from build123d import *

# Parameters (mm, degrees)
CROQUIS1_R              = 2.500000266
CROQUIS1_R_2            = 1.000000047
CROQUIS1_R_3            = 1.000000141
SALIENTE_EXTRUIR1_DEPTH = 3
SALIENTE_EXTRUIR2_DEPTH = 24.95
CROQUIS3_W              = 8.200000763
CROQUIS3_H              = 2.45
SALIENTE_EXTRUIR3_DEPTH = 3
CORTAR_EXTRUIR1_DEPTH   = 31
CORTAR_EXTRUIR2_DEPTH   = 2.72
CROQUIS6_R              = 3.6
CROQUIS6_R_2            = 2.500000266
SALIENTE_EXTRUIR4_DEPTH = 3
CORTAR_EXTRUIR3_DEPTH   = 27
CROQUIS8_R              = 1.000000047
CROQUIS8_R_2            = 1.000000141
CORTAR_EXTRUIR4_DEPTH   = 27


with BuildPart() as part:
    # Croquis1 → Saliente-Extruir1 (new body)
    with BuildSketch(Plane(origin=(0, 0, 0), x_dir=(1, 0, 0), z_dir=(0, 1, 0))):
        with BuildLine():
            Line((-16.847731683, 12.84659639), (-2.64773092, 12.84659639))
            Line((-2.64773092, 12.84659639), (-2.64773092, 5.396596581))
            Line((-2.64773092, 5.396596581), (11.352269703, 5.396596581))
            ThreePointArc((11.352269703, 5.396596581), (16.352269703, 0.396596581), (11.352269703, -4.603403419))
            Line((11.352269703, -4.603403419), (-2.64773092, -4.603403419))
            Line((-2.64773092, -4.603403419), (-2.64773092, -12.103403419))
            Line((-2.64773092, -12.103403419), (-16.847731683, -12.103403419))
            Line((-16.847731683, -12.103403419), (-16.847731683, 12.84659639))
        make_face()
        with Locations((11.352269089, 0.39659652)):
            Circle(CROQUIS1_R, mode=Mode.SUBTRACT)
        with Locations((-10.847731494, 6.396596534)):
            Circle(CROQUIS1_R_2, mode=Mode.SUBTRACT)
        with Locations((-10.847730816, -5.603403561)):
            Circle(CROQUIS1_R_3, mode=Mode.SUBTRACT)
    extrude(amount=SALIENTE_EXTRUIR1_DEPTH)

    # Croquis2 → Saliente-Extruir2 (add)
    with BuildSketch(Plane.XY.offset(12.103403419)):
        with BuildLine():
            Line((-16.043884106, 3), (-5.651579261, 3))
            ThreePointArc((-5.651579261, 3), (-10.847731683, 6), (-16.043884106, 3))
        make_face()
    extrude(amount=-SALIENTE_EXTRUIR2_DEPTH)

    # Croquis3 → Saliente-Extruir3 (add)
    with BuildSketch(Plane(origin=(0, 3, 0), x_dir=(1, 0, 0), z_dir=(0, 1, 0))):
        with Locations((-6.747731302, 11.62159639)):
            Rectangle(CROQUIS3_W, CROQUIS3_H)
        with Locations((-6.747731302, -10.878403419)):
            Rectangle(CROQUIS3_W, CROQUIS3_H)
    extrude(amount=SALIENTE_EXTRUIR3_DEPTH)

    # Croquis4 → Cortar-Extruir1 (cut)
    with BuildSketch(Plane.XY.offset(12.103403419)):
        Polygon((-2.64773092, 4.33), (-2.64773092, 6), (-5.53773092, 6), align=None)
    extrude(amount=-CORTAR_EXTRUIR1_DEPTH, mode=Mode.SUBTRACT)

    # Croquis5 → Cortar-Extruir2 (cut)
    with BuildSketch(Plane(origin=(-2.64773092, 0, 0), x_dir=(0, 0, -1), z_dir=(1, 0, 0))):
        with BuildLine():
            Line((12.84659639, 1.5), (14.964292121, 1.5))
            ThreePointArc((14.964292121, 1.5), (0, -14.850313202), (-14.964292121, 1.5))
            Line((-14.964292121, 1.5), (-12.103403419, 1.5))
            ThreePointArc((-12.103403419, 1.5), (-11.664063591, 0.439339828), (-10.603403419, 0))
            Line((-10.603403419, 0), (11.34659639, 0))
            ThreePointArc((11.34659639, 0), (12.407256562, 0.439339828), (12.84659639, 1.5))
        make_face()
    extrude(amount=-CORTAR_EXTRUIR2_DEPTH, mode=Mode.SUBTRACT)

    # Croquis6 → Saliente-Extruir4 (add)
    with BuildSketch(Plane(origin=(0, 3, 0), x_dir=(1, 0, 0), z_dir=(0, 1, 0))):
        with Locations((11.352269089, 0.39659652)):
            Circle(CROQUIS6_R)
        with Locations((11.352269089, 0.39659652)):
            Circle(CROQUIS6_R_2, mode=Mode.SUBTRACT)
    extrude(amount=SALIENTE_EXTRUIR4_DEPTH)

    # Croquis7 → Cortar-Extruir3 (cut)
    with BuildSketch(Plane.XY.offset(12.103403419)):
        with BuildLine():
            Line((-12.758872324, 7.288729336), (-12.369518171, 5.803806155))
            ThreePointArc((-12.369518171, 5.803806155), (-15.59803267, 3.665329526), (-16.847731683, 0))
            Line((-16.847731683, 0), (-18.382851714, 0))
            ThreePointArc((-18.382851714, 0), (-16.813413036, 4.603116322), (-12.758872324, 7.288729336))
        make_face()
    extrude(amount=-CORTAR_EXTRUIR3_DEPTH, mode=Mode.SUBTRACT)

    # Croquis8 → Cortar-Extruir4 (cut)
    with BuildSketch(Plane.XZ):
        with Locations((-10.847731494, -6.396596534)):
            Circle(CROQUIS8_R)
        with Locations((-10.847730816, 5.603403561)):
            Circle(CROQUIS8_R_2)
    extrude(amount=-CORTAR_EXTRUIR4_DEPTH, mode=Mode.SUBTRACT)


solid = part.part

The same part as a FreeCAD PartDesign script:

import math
import FreeCAD as App
import Part
import Sketcher
from FreeCAD import Vector
Q = App.Units.Quantity

doc = App.newDocument("Part")
body = doc.addObject("PartDesign::Body", "Body")

sketch1 = body.newObject("Sketcher::SketchObject", "Sketch")
sketch1.AttachmentSupport = (doc.getObject("XZ_Plane"), [""])
sketch1.MapMode = "FlatFace"
sketch1.addGeometry(Part.LineSegment(Vector(-2.6, -12.8, 0), Vector(-16.8, -12.8, 0)), False)
sketch1.addGeometry(Part.LineSegment(Vector(-16.8, -12.8, 0), Vector(-16.8, 12.1, 0)), False)
sketch1.addGeometry(Part.LineSegment(Vector(-16.8, 12.1, 0), Vector(-2.6, 12.1, 0)), False)
sketch1.addGeometry(Part.LineSegment(Vector(-2.6, 12.1, 0), Vector(-2.6, 4.6, 0)), False)
sketch1.addGeometry(Part.LineSegment(Vector(-2.6, 4.6, 0), Vector(11.4, 4.6, 0)), False)
sketch1.addGeometry(Part.ArcOfCircle(Part.Circle(Vector(11.4, -0.4, 0), Vector(0, 0, 1), 5), math.radians(-90), math.radians(90)), False)
sketch1.addGeometry(Part.LineSegment(Vector(11.4, -5.4, 0), Vector(-2.6, -5.4, 0)), False)
sketch1.addGeometry(Part.LineSegment(Vector(-2.6, -5.4, 0), Vector(-2.6, -12.8, 0)), False)
sketch1.addGeometry(Part.Circle(Vector(-10.8, 5.6, 0), Vector(0, 0, 1), 1), False)
sketch1.addGeometry(Part.Circle(Vector(11.4, -0.4, 0), Vector(0, 0, 1), 2.5), False)
sketch1.addGeometry(Part.Circle(Vector(-10.8, -6.4, 0), Vector(0, 0, 1), 1), False)
sketch1.addConstraint(Sketcher.Constraint("Coincident", 0, 2, 1, 1))
sketch1.addConstraint(Sketcher.Constraint("Coincident", 1, 2, 2, 1))
sketch1.addConstraint(Sketcher.Constraint("Coincident", 2, 2, 3, 1))
sketch1.addConstraint(Sketcher.Constraint("Coincident", 3, 2, 4, 1))
sketch1.addConstraint(Sketcher.Constraint("Tangent", 4, 2, 5, 2))
sketch1.addConstraint(Sketcher.Constraint("Tangent", 5, 1, 6, 1))
sketch1.addConstraint(Sketcher.Constraint("Coincident", 6, 2, 7, 1))
sketch1.addConstraint(Sketcher.Constraint("Coincident", 7, 2, 0, 1))
sketch1.addConstraint(Sketcher.Constraint("Horizontal", 0))
sketch1.addConstraint(Sketcher.Constraint("Vertical", 1))
sketch1.addConstraint(Sketcher.Constraint("Horizontal", 2))
sketch1.addConstraint(Sketcher.Constraint("Vertical", 3))
sketch1.addConstraint(Sketcher.Constraint("Horizontal", 4))
sketch1.addConstraint(Sketcher.Constraint("Horizontal", 6))
sketch1.addConstraint(Sketcher.Constraint("Vertical", 7))
sketch1.addConstraint(Sketcher.Constraint("Coincident", 9, 3, 5, 3))
sketch1.addConstraint(Sketcher.Constraint("Equal", 8, 10))
sketch1.addConstraint(Sketcher.Constraint("Vertical", 8, 3, 10, 3))
sketch1.addConstraint(Sketcher.Constraint("Vertical", 3, 2, 6, 2))
sketch1.addConstraint(Sketcher.Constraint("Diameter", 8, Q("2 mm")))
sketch1.addConstraint(Sketcher.Constraint("Diameter", 9, Q("5.000001 mm")))
sketch1.addConstraint(Sketcher.Constraint("Radius", 5, Q("5 mm")))
sketch1.addConstraint(Sketcher.Constraint("DistanceX", 4, 1, 4, 2, Q("14.000001 mm")))
sketch1.addConstraint(Sketcher.Constraint("DistanceX", 0, 2, 0, 1, Q("14.200001 mm")))
sketch1.addConstraint(Sketcher.Constraint("DistanceY", 3, 2, 3, 1, Q("7.5 mm")))
sketch1.addConstraint(Sketcher.Constraint("DistanceY", 5, 3, 8, 3, Q("6 mm")))
sketch1.addConstraint(Sketcher.Constraint("DistanceY", 10, 3, 8, 3, Q("12 mm")))
sketch1.addConstraint(Sketcher.Constraint("DistanceX", 0, 2, 10, 3, Q("6 mm")))
sketch1.addConstraint(Sketcher.Constraint("DistanceY", 1, 1, 1, 2, Q("24.95 mm")))
sketch1.addConstraint(Sketcher.Constraint("DistanceX", -1, 1, 5, 3, Q("11.35227 mm")))
sketch1.addConstraint(Sketcher.Constraint("DistanceY", 5, 3, -1, 1, Q("0.396597 mm")))
pad1 = body.newObject("PartDesign::Pad", "Pad")
pad1.Profile = sketch1
pad1.Length = 3
pad1.Reversed = True

sketch2 = body.newObject("Sketcher::SketchObject", "Sketch001")
sketch2.AttachmentSupport = (doc.getObject("XY_Plane"), [""])
sketch2.MapMode = "FlatFace"
sketch2.AttachmentOffset = App.Placement(Vector(0, 0, 12.103403), App.Rotation())
sketch2.addGeometry(Part.LineSegment(Vector(-16, 3, 0), Vector(-6, 3, 0)), False)
sketch2.addGeometry(Part.ArcOfCircle(Part.Circle(Vector(-11, 0, 0), Vector(0, 0, 1), 6), math.radians(30), math.radians(150)), False)
sketch2.addConstraint(Sketcher.Constraint("Coincident", 0, 1, 1, 2))
sketch2.addConstraint(Sketcher.Constraint("Coincident", 1, 1, 0, 2))
sketch2.addConstraint(Sketcher.Constraint("Horizontal", 0))
sketch2.addConstraint(Sketcher.Constraint("PointOnObject", 1, 3, -1))
sketch2.addConstraint(Sketcher.Constraint("Radius", 1, Q("6 mm")))
sketch2.addConstraint(Sketcher.Constraint("DistanceY", -1, 1, 0, 1, Q("3 mm")))
sketch2.addConstraint(Sketcher.Constraint("DistanceX", 1, 3, -1, 1, Q("10.847732 mm")))
pad2 = body.newObject("PartDesign::Pad", "Pad001")
pad2.Profile = sketch2
pad2.Length = 24.95
pad2.Reversed = True

sketch3 = body.newObject("Sketcher::SketchObject", "Sketch002")
sketch3.AttachmentSupport = (doc.getObject("XZ_Plane"), [""])
sketch3.MapMode = "FlatFace"
sketch3.AttachmentOffset = App.Placement(Vector(0, 0, -3), App.Rotation())
sketch3.addGeometry(Part.LineSegment(Vector(-10.8, -12.8, 0), Vector(-10.8, -10.4, 0)), False)
sketch3.addGeometry(Part.LineSegment(Vector(-10.8, -10.4, 0), Vector(-2.6, -10.4, 0)), False)
sketch3.addGeometry(Part.LineSegment(Vector(-2.6, -10.4, 0), Vector(-2.6, -12.8, 0)), False)
sketch3.addGeometry(Part.LineSegment(Vector(-2.6, -12.8, 0), Vector(-10.8, -12.8, 0)), False)
sketch3.addGeometry(Part.LineSegment(Vector(-10.8, 9.7, 0), Vector(-10.8, 12.1, 0)), False)
sketch3.addGeometry(Part.LineSegment(Vector(-10.8, 12.1, 0), Vector(-2.6, 12.1, 0)), False)
sketch3.addGeometry(Part.LineSegment(Vector(-2.6, 12.1, 0), Vector(-2.6, 9.7, 0)), False)
sketch3.addGeometry(Part.LineSegment(Vector(-2.6, 9.7, 0), Vector(-10.8, 9.7, 0)), False)
sketch3.addConstraint(Sketcher.Constraint("Coincident", 0, 2, 1, 1))
sketch3.addConstraint(Sketcher.Constraint("Coincident", 1, 2, 2, 1))
sketch3.addConstraint(Sketcher.Constraint("Coincident", 2, 2, 3, 1))
sketch3.addConstraint(Sketcher.Constraint("Coincident", 3, 2, 0, 1))
sketch3.addConstraint(Sketcher.Constraint("Coincident", 4, 2, 5, 1))
sketch3.addConstraint(Sketcher.Constraint("Coincident", 5, 2, 6, 1))
sketch3.addConstraint(Sketcher.Constraint("Coincident", 6, 2, 7, 1))
sketch3.addConstraint(Sketcher.Constraint("Coincident", 7, 2, 4, 1))
sketch3.addConstraint(Sketcher.Constraint("Vertical", 0))
sketch3.addConstraint(Sketcher.Constraint("Horizontal", 1))
sketch3.addConstraint(Sketcher.Constraint("Vertical", 2))
sketch3.addConstraint(Sketcher.Constraint("Horizontal", 3))
sketch3.addConstraint(Sketcher.Constraint("Vertical", 4))
sketch3.addConstraint(Sketcher.Constraint("Horizontal", 5))
sketch3.addConstraint(Sketcher.Constraint("Vertical", 6))
sketch3.addConstraint(Sketcher.Constraint("Horizontal", 7))
sketch3.addConstraint(Sketcher.Constraint("Vertical", 3, 2, 4, 2))
sketch3.addConstraint(Sketcher.Constraint("Vertical", 2, 2, 5, 2))
sketch3.addConstraint(Sketcher.Constraint("Equal", 2, 4))
sketch3.addConstraint(Sketcher.Constraint("DistanceX", 1, 1, 1, 2, Q("8.200001 mm")))
sketch3.addConstraint(Sketcher.Constraint("DistanceY", 0, 1, 0, 2, Q("2.45 mm")))
sketch3.addConstraint(Sketcher.Constraint("DistanceY", 0, 2, 4, 2, Q("22.5 mm")))
sketch3.addConstraint(Sketcher.Constraint("DistanceX", 0, 2, -1, 1, Q("10.847732 mm")))
sketch3.addConstraint(Sketcher.Constraint("DistanceY", 0, 2, -1, 1, Q("10.396596 mm")))
pad3 = body.newObject("PartDesign::Pad", "Pad002")
pad3.Profile = sketch3
pad3.Length = 3
pad3.Reversed = True

sketch4 = body.newObject("Sketcher::SketchObject", "Sketch003")
sketch4.AttachmentSupport = (doc.getObject("XY_Plane"), [""])
sketch4.MapMode = "FlatFace"
sketch4.AttachmentOffset = App.Placement(Vector(0, 0, 12.103403), App.Rotation())
sketch4.addGeometry(Part.LineSegment(Vector(-2.6, 4.3, 0), Vector(-2.6, 6, 0)), False)
sketch4.addGeometry(Part.LineSegment(Vector(-2.6, 6, 0), Vector(-5.5, 6, 0)), False)
sketch4.addGeometry(Part.LineSegment(Vector(-5.5, 6, 0), Vector(-2.6, 4.3, 0)), False)
sketch4.addConstraint(Sketcher.Constraint("Coincident", 0, 2, 1, 1))
sketch4.addConstraint(Sketcher.Constraint("Coincident", 1, 2, 2, 1))
sketch4.addConstraint(Sketcher.Constraint("Coincident", 2, 2, 0, 1))
sketch4.addConstraint(Sketcher.Constraint("Vertical", 0))
sketch4.addConstraint(Sketcher.Constraint("Horizontal", 1))
sketch4.addConstraint(Sketcher.Constraint("DistanceY", -1, 1, 0, 2, Q("6 mm")))
sketch4.addConstraint(Sketcher.Constraint("DistanceX", 1, 2, 1, 1, Q("2.89 mm")))
sketch4.addConstraint(Sketcher.Constraint("DistanceY", 0, 1, 0, 2, Q("1.67 mm")))
sketch4.addConstraint(Sketcher.Constraint("DistanceX", 0, 2, -1, 1, Q("2.647731 mm")))
pocket1 = body.newObject("PartDesign::Pocket", "Pocket")
pocket1.Profile = sketch4
pocket1.Length = 31

sketch5 = body.newObject("Sketcher::SketchObject", "Sketch004")
sketch5.AttachmentSupport = (doc.getObject("YZ_Plane"), [""])
sketch5.MapMode = "FlatFace"
sketch5.AttachmentOffset = App.Placement(Vector(0, 0, -2.647731), App.Rotation())
sketch5.addGeometry(Part.LineSegment(Vector(1.5, -15, 0), Vector(1.5, -12.8, 0)), False)
sketch5.addGeometry(Part.ArcOfCircle(Part.Circle(Vector(1.5, -11.3, 0), Vector(0, 0, 1), 1.5), math.radians(180), math.radians(270)), False)
sketch5.addGeometry(Part.LineSegment(Vector(0, -11.3, 0), Vector(0, 10.6, 0)), False)
sketch5.addGeometry(Part.ArcOfCircle(Part.Circle(Vector(1.5, 10.6, 0), Vector(0, 0, 1), 1.5), math.radians(90), math.radians(180)), False)
sketch5.addGeometry(Part.LineSegment(Vector(1.5, 12.1, 0), Vector(1.5, 15, 0)), False)
sketch5.addGeometry(Part.ArcOfCircle(Part.Circle(Vector(0.2, 0, 0), Vector(0, 0, 1), 15), math.radians(85), math.radians(275)), False)
sketch5.addConstraint(Sketcher.Constraint("Coincident", 0, 2, 1, 2))
sketch5.addConstraint(Sketcher.Constraint("Tangent", 1, 1, 2, 1))
sketch5.addConstraint(Sketcher.Constraint("Tangent", 2, 2, 3, 2))
sketch5.addConstraint(Sketcher.Constraint("Coincident", 3, 1, 4, 1))
sketch5.addConstraint(Sketcher.Constraint("Coincident", 4, 2, 5, 1))
sketch5.addConstraint(Sketcher.Constraint("Coincident", 5, 2, 0, 1))
sketch5.addConstraint(Sketcher.Constraint("Vertical", 0))
sketch5.addConstraint(Sketcher.Constraint("Vertical", 2))
sketch5.addConstraint(Sketcher.Constraint("Vertical", 4))
sketch5.addConstraint(Sketcher.Constraint("Equal", 1, 3))
sketch5.addConstraint(Sketcher.Constraint("Symmetric", 4, 2, 5, 2, -1))
sketch5.addConstraint(Sketcher.Constraint("PointOnObject", 1, 1, -2))
sketch5.addConstraint(Sketcher.Constraint("Vertical", 3, 3, 0, 2))
sketch5.addConstraint(Sketcher.Constraint("Radius", 1, Q("1.5 mm")))
sketch5.addConstraint(Sketcher.Constraint("DistanceY", 2, 1, 2, 2, Q("21.95 mm")))
sketch5.addConstraint(Sketcher.Constraint("Radius", 5, Q("15.023039 mm")))
sketch5.addConstraint(Sketcher.Constraint("DistanceY", 4, 1, 4, 2, Q("2.860889 mm")))
sketch5.addConstraint(Sketcher.Constraint("DistanceY", 0, 1, 0, 2, Q("2.117696 mm")))
pocket2 = body.newObject("PartDesign::Pocket", "Pocket001")
pocket2.Profile = sketch5
pocket2.Length = 2.72

sketch6 = body.newObject("Sketcher::SketchObject", "Sketch005")
sketch6.AttachmentSupport = (doc.getObject("XZ_Plane"), [""])
sketch6.MapMode = "FlatFace"
sketch6.AttachmentOffset = App.Placement(Vector(0, 0, -3), App.Rotation())
sketch6.addGeometry(Part.Circle(Vector(11.4, -0.4, 0), Vector(0, 0, 1), 3.6), False)
sketch6.addGeometry(Part.Circle(Vector(11.4, -0.4, 0), Vector(0, 0, 1), 2.5), False)
sketch6.addConstraint(Sketcher.Constraint("Coincident", 1, 3, 0, 3))
sketch6.addConstraint(Sketcher.Constraint("Diameter", 1, Q("5.000001 mm")))
sketch6.addConstraint(Sketcher.Constraint("Diameter", 0, Q("7.2 mm")))
sketch6.addConstraint(Sketcher.Constraint("DistanceX", -1, 1, 0, 3, Q("11.352269 mm")))
sketch6.addConstraint(Sketcher.Constraint("DistanceY", 0, 3, -1, 1, Q("0.396597 mm")))
pad4 = body.newObject("PartDesign::Pad", "Pad003")
pad4.Profile = sketch6
pad4.Length = 3
pad4.Reversed = True

sketch7 = body.newObject("Sketcher::SketchObject", "Sketch006")
sketch7.AttachmentSupport = (doc.getObject("XY_Plane"), [""])
sketch7.MapMode = "FlatFace"
sketch7.AttachmentOffset = App.Placement(Vector(0, 0, 12.103403), App.Rotation())
sketch7.addGeometry(Part.LineSegment(Vector(-12.4, 5.8, 0), Vector(-12.8, 7.3, 0)), False)
sketch7.addGeometry(Part.ArcOfCircle(Part.Circle(Vector(-10.8, 0, 0), Vector(0, 0, 1), 7.5), math.radians(105), math.radians(180)), False)
sketch7.addGeometry(Part.LineSegment(Vector(-18.4, 0, 0), Vector(-16.8, 0, 0)), False)
sketch7.addGeometry(Part.ArcOfCircle(Part.Circle(Vector(-10.8, 0, 0), Vector(0, 0, 1), 6), math.radians(105), math.radians(180)), False)
sketch7.addConstraint(Sketcher.Constraint("Coincident", 0, 2, 1, 1))
sketch7.addConstraint(Sketcher.Constraint("Coincident", 1, 2, 2, 1))
sketch7.addConstraint(Sketcher.Constraint("Coincident", 2, 2, 3, 2))
sketch7.addConstraint(Sketcher.Constraint("Coincident", 3, 1, 0, 1))
sketch7.addConstraint(Sketcher.Constraint("Horizontal", 2))
sketch7.addConstraint(Sketcher.Constraint("Coincident", 3, 3, 1, 3))
sketch7.addConstraint(Sketcher.Constraint("PointOnObject", 1, 3, -1))
sketch7.addConstraint(Sketcher.Constraint("PointOnObject", 1, 2, -1))
sketch7.addConstraint(Sketcher.Constraint("Radius", 3, Q("6 mm")))
sketch7.addConstraint(Sketcher.Constraint("Radius", 1, Q("7.53512 mm")))
sketch7.addConstraint(Sketcher.Constraint("DistanceX", 1, 3, -1, 1, Q("10.847732 mm")))
sketch7.addConstraint(Sketcher.Constraint("DistanceY", -1, 1, 0, 2, Q("7.288729 mm")))
sketch7.addConstraint(Sketcher.Constraint("DistanceX", 3, 1, -1, 1, Q("12.369518 mm")))
pocket3 = body.newObject("PartDesign::Pocket", "Pocket002")
pocket3.Profile = sketch7
pocket3.Length = 27

sketch8 = body.newObject("Sketcher::SketchObject", "Sketch007")
sketch8.AttachmentSupport = (doc.getObject("XZ_Plane"), [""])
sketch8.MapMode = "FlatFace"
sketch8.addGeometry(Part.Circle(Vector(-10.8, -6.4, 0), Vector(0, 0, 1), 1), False)
sketch8.addGeometry(Part.Circle(Vector(-10.8, 5.6, 0), Vector(0, 0, 1), 1), False)
sketch8.addConstraint(Sketcher.Constraint("Equal", 0, 1))
sketch8.addConstraint(Sketcher.Constraint("Vertical", 0, 3, 1, 3))
sketch8.addConstraint(Sketcher.Constraint("Diameter", 0, Q("2 mm")))
sketch8.addConstraint(Sketcher.Constraint("DistanceY", 0, 3, 1, 3, Q("12 mm")))
sketch8.addConstraint(Sketcher.Constraint("DistanceX", 0, 3, -1, 1, Q("10.847731 mm")))
sketch8.addConstraint(Sketcher.Constraint("DistanceY", 0, 3, -1, 1, Q("6.396597 mm")))
pocket4 = body.newObject("PartDesign::Pocket", "Pocket003")
pocket4.Profile = sketch8
pocket4.Length = 27

doc.recompute()
